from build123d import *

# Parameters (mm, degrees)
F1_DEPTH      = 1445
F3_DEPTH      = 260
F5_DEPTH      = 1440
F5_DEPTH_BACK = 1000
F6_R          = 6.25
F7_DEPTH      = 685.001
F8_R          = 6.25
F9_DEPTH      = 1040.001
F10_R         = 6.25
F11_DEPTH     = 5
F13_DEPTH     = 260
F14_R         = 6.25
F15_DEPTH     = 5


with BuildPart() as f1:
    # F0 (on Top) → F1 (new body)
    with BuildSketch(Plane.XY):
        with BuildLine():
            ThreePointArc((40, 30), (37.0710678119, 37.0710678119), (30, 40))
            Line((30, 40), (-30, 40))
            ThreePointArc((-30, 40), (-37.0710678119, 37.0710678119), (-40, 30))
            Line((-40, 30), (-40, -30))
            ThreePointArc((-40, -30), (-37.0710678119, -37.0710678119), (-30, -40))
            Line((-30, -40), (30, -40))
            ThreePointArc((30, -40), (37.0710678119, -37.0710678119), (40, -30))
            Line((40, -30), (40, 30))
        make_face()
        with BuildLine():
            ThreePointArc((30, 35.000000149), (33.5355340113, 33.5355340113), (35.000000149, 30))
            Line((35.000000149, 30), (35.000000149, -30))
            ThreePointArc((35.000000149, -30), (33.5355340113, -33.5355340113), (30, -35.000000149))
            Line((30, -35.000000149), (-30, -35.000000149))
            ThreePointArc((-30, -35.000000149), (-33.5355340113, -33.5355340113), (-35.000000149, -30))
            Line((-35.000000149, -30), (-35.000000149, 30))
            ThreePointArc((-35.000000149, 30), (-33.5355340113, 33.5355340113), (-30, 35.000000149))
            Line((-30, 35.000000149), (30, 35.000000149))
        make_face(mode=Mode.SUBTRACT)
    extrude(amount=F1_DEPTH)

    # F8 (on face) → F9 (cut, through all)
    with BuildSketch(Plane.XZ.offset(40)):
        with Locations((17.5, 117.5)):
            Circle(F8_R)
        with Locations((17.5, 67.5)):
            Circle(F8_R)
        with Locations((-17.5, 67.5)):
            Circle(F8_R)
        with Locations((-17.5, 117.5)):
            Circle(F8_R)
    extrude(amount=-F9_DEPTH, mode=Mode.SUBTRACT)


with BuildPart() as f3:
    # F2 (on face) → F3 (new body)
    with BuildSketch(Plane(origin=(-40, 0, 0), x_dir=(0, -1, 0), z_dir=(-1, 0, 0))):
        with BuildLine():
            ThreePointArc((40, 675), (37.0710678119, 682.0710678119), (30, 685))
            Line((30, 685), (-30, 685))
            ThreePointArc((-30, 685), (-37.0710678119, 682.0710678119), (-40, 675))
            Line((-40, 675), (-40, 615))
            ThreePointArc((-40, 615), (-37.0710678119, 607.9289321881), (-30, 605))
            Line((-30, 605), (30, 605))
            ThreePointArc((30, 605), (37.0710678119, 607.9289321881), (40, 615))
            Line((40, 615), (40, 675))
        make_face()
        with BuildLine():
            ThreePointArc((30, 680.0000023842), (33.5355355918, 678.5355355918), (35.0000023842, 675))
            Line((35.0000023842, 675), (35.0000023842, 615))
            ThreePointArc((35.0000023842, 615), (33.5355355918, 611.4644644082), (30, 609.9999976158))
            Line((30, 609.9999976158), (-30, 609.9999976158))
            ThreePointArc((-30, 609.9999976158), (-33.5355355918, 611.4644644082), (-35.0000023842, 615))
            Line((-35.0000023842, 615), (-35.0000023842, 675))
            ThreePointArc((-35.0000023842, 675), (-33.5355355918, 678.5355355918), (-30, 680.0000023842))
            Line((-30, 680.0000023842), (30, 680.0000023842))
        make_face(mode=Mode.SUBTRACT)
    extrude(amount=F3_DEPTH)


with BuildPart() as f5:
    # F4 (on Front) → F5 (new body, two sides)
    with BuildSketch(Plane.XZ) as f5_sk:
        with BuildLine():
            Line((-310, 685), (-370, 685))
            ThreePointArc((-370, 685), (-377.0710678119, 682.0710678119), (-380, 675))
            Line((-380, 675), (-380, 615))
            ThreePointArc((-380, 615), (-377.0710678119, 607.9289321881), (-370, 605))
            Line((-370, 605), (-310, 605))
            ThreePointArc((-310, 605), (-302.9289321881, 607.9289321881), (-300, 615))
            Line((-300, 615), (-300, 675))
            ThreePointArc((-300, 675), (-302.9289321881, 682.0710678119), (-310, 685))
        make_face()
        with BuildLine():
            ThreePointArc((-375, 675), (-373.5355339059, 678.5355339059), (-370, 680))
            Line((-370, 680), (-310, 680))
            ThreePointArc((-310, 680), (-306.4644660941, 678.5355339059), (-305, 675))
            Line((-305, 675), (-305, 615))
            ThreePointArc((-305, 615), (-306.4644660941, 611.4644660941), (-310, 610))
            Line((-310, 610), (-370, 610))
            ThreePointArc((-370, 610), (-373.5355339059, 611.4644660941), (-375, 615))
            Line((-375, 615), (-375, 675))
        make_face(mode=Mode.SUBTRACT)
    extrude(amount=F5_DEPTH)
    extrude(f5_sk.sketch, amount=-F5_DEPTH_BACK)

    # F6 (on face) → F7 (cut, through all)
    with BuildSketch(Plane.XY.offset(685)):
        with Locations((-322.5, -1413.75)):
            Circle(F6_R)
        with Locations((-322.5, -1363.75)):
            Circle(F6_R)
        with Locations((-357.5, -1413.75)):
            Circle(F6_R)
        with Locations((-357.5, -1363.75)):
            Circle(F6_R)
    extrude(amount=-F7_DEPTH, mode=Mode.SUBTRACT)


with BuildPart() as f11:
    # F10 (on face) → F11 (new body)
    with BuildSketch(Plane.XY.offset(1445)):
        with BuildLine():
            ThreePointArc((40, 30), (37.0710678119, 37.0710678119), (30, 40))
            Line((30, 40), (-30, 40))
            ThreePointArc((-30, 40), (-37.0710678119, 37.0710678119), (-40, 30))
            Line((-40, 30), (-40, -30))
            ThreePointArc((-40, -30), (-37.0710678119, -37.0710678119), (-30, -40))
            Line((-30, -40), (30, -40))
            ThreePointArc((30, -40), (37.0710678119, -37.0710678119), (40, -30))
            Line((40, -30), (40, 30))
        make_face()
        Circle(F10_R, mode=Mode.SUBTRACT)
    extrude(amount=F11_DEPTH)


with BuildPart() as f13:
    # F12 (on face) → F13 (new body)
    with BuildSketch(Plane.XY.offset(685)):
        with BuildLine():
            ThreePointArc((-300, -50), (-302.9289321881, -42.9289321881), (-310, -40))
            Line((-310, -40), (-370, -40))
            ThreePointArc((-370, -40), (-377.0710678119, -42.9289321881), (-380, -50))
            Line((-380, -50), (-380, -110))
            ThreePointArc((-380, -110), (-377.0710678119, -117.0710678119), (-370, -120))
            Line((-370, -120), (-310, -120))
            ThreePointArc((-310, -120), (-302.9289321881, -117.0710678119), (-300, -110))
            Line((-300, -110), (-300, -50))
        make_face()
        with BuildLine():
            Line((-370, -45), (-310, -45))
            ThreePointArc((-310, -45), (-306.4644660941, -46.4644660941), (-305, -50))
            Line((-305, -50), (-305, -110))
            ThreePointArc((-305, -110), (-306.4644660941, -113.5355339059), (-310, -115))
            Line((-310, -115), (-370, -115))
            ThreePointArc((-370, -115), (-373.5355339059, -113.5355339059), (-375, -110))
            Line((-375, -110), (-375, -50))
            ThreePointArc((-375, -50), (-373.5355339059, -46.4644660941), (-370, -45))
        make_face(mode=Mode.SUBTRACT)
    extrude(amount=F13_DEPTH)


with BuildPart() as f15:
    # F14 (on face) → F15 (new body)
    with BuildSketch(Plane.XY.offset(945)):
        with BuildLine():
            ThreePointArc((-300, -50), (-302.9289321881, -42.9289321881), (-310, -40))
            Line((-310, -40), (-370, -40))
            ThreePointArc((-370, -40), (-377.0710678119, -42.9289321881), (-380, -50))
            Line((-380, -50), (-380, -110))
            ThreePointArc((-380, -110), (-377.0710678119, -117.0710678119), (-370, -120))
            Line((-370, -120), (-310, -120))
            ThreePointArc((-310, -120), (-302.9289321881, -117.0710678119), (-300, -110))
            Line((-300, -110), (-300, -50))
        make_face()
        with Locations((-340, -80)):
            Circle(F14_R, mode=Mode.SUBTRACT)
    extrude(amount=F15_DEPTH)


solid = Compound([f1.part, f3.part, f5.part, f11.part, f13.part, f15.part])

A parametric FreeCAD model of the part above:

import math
import FreeCAD as App
import Part
import Sketcher
from FreeCAD import Vector

doc = App.newDocument("Part")
body = doc.addObject("PartDesign::Body", "Body")

sketch1 = body.newObject("Sketcher::SketchObject", "Sketch")
sketch1.AttachmentSupport = (doc.getObject("XY_Plane"), [""])
sketch1.MapMode = "FlatFace"
sketch1.addGeometry([
    Part.ArcOfCircle(Part.Circle(Vector(30, 30, 0), Vector(0, 0, 1), 10), math.radians(0), math.radians(90)),
    Part.LineSegment(Vector(30, 40, 0), Vector(-30, 40, 0)),
    Part.ArcOfCircle(Part.Circle(Vector(-30, 30, 0), Vector(0, 0, 1), 10), math.radians(90), math.radians(180)),
    Part.LineSegment(Vector(-40, 30, 0), Vector(-40, -30, 0)),
    Part.ArcOfCircle(Part.Circle(Vector(-30, -30, 0), Vector(0, 0, 1), 10), math.radians(180), math.radians(270)),
    Part.LineSegment(Vector(-30, -40, 0), Vector(30, -40, 0)),
    Part.ArcOfCircle(Part.Circle(Vector(30, -30, 0), Vector(0, 0, 1), 10), math.radians(-90), math.radians(0)),
    Part.LineSegment(Vector(40, -30, 0), Vector(40, 30, 0)),
    Part.LineSegment(Vector(-30, 35, 0), Vector(30, 35, 0)),
    Part.ArcOfCircle(Part.Circle(Vector(30, 30, 0), Vector(0, 0, 1), 5), math.radians(0), math.radians(90)),
    Part.LineSegment(Vector(35, 30, 0), Vector(35, -30, 0)),
    Part.ArcOfCircle(Part.Circle(Vector(30, -30, 0), Vector(0, 0, 1), 5), math.radians(-90), math.radians(0)),
    Part.LineSegment(Vector(30, -35, 0), Vector(-30, -35, 0)),
    Part.ArcOfCircle(Part.Circle(Vector(-30, -30, 0), Vector(0, 0, 1), 5), math.radians(180), math.radians(270)),
    Part.LineSegment(Vector(-35, -30, 0), Vector(-35, 30, 0)),
    Part.ArcOfCircle(Part.Circle(Vector(-30, 30, 0), Vector(0, 0, 1), 5), math.radians(90), math.radians(180)),
], False)
sketch1.addConstraint([
    Sketcher.Constraint("Tangent", 0, 2, 1, 1),
    Sketcher.Constraint("Tangent", 1, 2, 2, 1),
    Sketcher.Constraint("Tangent", 2, 2, 3, 1),
    Sketcher.Constraint("Tangent", 3, 2, 4, 1),
    Sketcher.Constraint("Tangent", 4, 2, 5, 1),
    Sketcher.Constraint("Tangent", 5, 2, 6, 1),
    Sketcher.Constraint("Tangent", 6, 2, 7, 1),
    Sketcher.Constraint("Tangent", 7, 2, 0, 1),
    Sketcher.Constraint("Tangent", 8, 2, 9, 2),
    Sketcher.Constraint("Tangent", 9, 1, 10, 1),
    Sketcher.Constraint("Tangent", 10, 2, 11, 2),
    Sketcher.Constraint("Tangent", 11, 1, 12, 1),
    Sketcher.Constraint("Tangent", 12, 2, 13, 2),
    Sketcher.Constraint("Tangent", 13, 1, 14, 1),
    Sketcher.Constraint("Tangent", 14, 2, 15, 2),
    Sketcher.Constraint("Tangent", 15, 1, 8, 1),
    Sketcher.Constraint("Horizontal", 1),
    Sketcher.Constraint("Vertical", 3),
    Sketcher.Constraint("Horizontal", 5),
    Sketcher.Constraint("Vertical", 7),
    Sketcher.Constraint("Horizontal", 8),
    Sketcher.Constraint("Vertical", 10),
    Sketcher.Constraint("Horizontal", 12),
    Sketcher.Constraint("Vertical", 14),
    Sketcher.Constraint("Coincident", 9, 3, 0, 3),
    Sketcher.Constraint("Coincident", 11, 3, 6, 3),
    Sketcher.Constraint("Coincident", 13, 3, 4, 3),
    Sketcher.Constraint("Equal", 0, 2),
    Sketcher.Constraint("Equal", 2, 4),
    Sketcher.Constraint("Equal", 4, 6),
    Sketcher.Constraint("Equal", 13, 15),
    Sketcher.Constraint("Symmetric", 0, 3, 4, 3, -1, 1),
    Sketcher.Constraint("Equal", 12, 3),
    Sketcher.Constraint("Radius", 0, 10.0),
    Sketcher.Constraint("Radius", 9, 5.0),
    Sketcher.Constraint("DistanceX", 1, 2, 1, 1, 60.0),
])
pad1 = body.newObject("PartDesign::Pad", "Pad")
pad1.Profile = sketch1
pad1.Length = 1445

sketch2 = body.newObject("Sketcher::SketchObject", "Sketch001")
sketch2.AttachmentSupport = (doc.getObject("XZ_Plane"), [""])
sketch2.MapMode = "FlatFace"
sketch2.AttachmentOffset = App.Placement(Vector(0, 0, 40), App.Rotation())
sketch2.addGeometry([
    Part.Circle(Vector(18, 118, 0), Vector(0, 0, 1), 6),
    Part.Circle(Vector(18, 68, 0), Vector(0, 0, 1), 6),
    Part.Circle(Vector(-18, 68, 0), Vector(0, 0, 1), 6),
    Part.Circle(Vector(-18, 118, 0), Vector(0, 0, 1), 6),
], False)
sketch2.addConstraint([
    Sketcher.Constraint("Equal", 0, 1),
    Sketcher.Constraint("Equal", 1, 2),
    Sketcher.Constraint("Equal", 2, 3),
    Sketcher.Constraint("Symmetric", 1, 3, 2, 3, -2),
    Sketcher.Constraint("Symmetric", 0, 3, 3, 3, -2),
    Sketcher.Constraint("Vertical", 0, 3, 1, 3),
    Sketcher.Constraint("Diameter", 0, 12.5),
    Sketcher.Constraint("DistanceY", 1, 3, 0, 3, 50.0),
    Sketcher.Constraint("DistanceX", 2, 3, 1, 3, 35.0),
    Sketcher.Constraint("DistanceY", -1, 1, 0, 3, 117.5),
])
pocket1 = body.newObject("PartDesign::Pocket", "Pocket")
pocket1.Profile = sketch2
pocket1.Type = "ThroughAll"
body2 = doc.addObject("PartDesign::Body", "Body001")

sketch3 = body2.newObject("Sketcher::SketchObject", "Sketch002")
sketch3.AttachmentSupport = (doc.getObject("YZ_Plane001"), [""])
sketch3.MapMode = "FlatFace"
sketch3.AttachmentOffset = App.Placement(Vector(0, 0, -40), App.Rotation())
sketch3.addGeometry([
    Part.ArcOfCircle(Part.Circle(Vector(-30, 675, 0), Vector(0, 0, 1), 10), math.radians(90), math.radians(180)),
    Part.LineSegment(Vector(-30, 685, 0), Vector(30, 685, 0)),
    Part.ArcOfCircle(Part.Circle(Vector(30, 675, 0), Vector(0, 0, 1), 10), math.radians(0), math.radians(90)),
    Part.LineSegment(Vector(40, 675, 0), Vector(40, 615, 0)),
    Part.ArcOfCircle(Part.Circle(Vector(30, 615, 0), Vector(0, 0, 1), 10), math.radians(-90), math.radians(0)),
    Part.LineSegment(Vector(30, 605, 0), Vector(-30, 605, 0)),
    Part.ArcOfCircle(Part.Circle(Vector(-30, 615, 0), Vector(0, 0, 1), 10), math.radians(180), math.radians(270)),
    Part.LineSegment(Vector(-40, 615, 0), Vector(-40, 675, 0)),
    Part.LineSegment(Vector(30, 680, 0), Vector(-30, 680, 0)),
    Part.ArcOfCircle(Part.Circle(Vector(-30, 675, 0), Vector(0, 0, 1), 5), math.radians(90), math.radians(180)),
    Part.LineSegment(Vector(-35, 675, 0), Vector(-35, 615, 0)),
    Part.ArcOfCircle(Part.Circle(Vector(-30, 615, 0), Vector(0, 0, 1), 5), math.radians(180), math.radians(270)),
    Part.LineSegment(Vector(-30, 610, 0), Vector(30, 610, 0)),
    Part.ArcOfCircle(Part.Circle(Vector(30, 615, 0), Vector(0, 0, 1), 5), math.radians(-90), math.radians(0)),
    Part.LineSegment(Vector(35, 615, 0), Vector(35, 675, 0)),
    Part.ArcOfCircle(Part.Circle(Vector(30, 675, 0), Vector(0, 0, 1), 5), math.radians(0), math.radians(90)),
], False)
sketch3.addConstraint([
    Sketcher.Constraint("Tangent", 0, 1, 1, 1),
    Sketcher.Constraint("Tangent", 1, 2, 2, 2),
    Sketcher.Constraint("Tangent", 2, 1, 3, 1),
    Sketcher.Constraint("Tangent", 3, 2, 4, 2),
    Sketcher.Constraint("Tangent", 4, 1, 5, 1),
    Sketcher.Constraint("Tangent", 5, 2, 6, 2),
    Sketcher.Constraint("Tangent", 6, 1, 7, 1),
    Sketcher.Constraint("Tangent", 7, 2, 0, 2),
    Sketcher.Constraint("Tangent", 8, 2, 9, 1),
    Sketcher.Constraint("Tangent", 9, 2, 10, 1),
    Sketcher.Constraint("Tangent", 10, 2, 11, 1),
    Sketcher.Constraint("Tangent", 11, 2, 12, 1),
    Sketcher.Constraint("Tangent", 12, 2, 13, 1),
    Sketcher.Constraint("Tangent", 13, 2, 14, 1),
    Sketcher.Constraint("Tangent", 14, 2, 15, 1),
    Sketcher.Constraint("Tangent", 15, 2, 8, 1),
    Sketcher.Constraint("Horizontal", 1),
    Sketcher.Constraint("Vertical", 3),
    Sketcher.Constraint("Horizontal", 5),
    Sketcher.Constraint("Vertical", 7),
    Sketcher.Constraint("Horizontal", 8),
    Sketcher.Constraint("Vertical", 10),
    Sketcher.Constraint("Horizontal", 12),
    Sketcher.Constraint("Vertical", 14),
    Sketcher.Constraint("Coincident", 9, 3, 0, 3),
    Sketcher.Constraint("Coincident", 11, 3, 6, 3),
    Sketcher.Constraint("Coincident", 13, 3, 4, 3),
    Sketcher.Constraint("Equal", 0, 2),
    Sketcher.Constraint("Equal", 2, 4),
    Sketcher.Constraint("Equal", 4, 6),
    Sketcher.Constraint("Equal", 13, 15),
    Sketcher.Constraint("Equal", 12, 3),
    Sketcher.Constraint("Radius", 0, 10.0),
    Sketcher.Constraint("DistanceX", 1, 1, 1, 2, 60.0),
    Sketcher.Constraint("DistanceX", 0, 3, -1, 1, 30.0),
    Sketcher.Constraint("DistanceY", -1, 1, 0, 3, 675.0),
    Sketcher.Constraint("Radius", 9, 5.000002),
])
pad2 = body2.newObject("PartDesign::Pad", "Pad001")
pad2.Profile = sketch3
pad2.Length = 260
pad2.Reversed = True
body3 = doc.addObject("PartDesign::Body", "Body002")

sketch4 = body3.newObject("Sketcher::SketchObject", "Sketch003")
sketch4.AttachmentSupport = (doc.getObject("XZ_Plane002"), [""])
sketch4.MapMode = "FlatFace"
sketch4.addGeometry([
    Part.LineSegment(Vector(-310, 685, 0), Vector(-370, 685, 0)),
    Part.ArcOfCircle(Part.Circle(Vector(-370, 675, 0), Vector(0, 0, 1), 10), math.radians(90), math.radians(180)),
    Part.LineSegment(Vector(-380, 675, 0), Vector(-380, 615, 0)),
    Part.ArcOfCircle(Part.Circle(Vector(-370, 615, 0), Vector(0, 0, 1), 10), math.radians(180), math.radians(270)),
    Part.LineSegment(Vector(-370, 605, 0), Vector(-310, 605, 0)),
    Part.ArcOfCircle(Part.Circle(Vector(-310, 615, 0), Vector(0, 0, 1), 10), math.radians(-90), math.radians(0)),
    Part.LineSegment(Vector(-300, 615, 0), Vector(-300, 675, 0)),
    Part.ArcOfCircle(Part.Circle(Vector(-310, 675, 0), Vector(0, 0, 1), 10), math.radians(0), math.radians(90)),
    Part.LineSegment(Vector(-375, 615, 0), Vector(-375, 675, 0)),
    Part.ArcOfCircle(Part.Circle(Vector(-370, 675, 0), Vector(0, 0, 1), 5), math.radians(90), math.radians(180)),
    Part.LineSegment(Vector(-370, 680, 0), Vector(-310, 680, 0)),
    Part.ArcOfCircle(Part.Circle(Vector(-310, 675, 0), Vector(0, 0, 1), 5), math.radians(0), math.radians(90)),
    Part.LineSegment(Vector(-305, 675, 0), Vector(-305, 615, 0)),
    Part.ArcOfCircle(Part.Circle(Vector(-310, 615, 0), Vector(0, 0, 1), 5), math.radians(-90), math.radians(0)),
    Part.LineSegment(Vector(-310, 610, 0), Vector(-370, 610, 0)),
    Part.ArcOfCircle(Part.Circle(Vector(-370, 615, 0), Vector(0, 0, 1), 5), math.radians(180), math.radians(270)),
], False)
sketch4.addConstraint([
    Sketcher.Constraint("Tangent", 0, 2, 1, 1),
    Sketcher.Constraint("Tangent", 1, 2, 2, 1),
    Sketcher.Constraint("Tangent", 2, 2, 3, 1),
    Sketcher.Constraint("Tangent", 3, 2, 4, 1),
    Sketcher.Constraint("Tangent", 4, 2, 5, 1),
    Sketcher.Constraint("Tangent", 5, 2, 6, 1),
    Sketcher.Constraint("Tangent", 6, 2, 7, 1),
    Sketcher.Constraint("Tangent", 7, 2, 0, 1),
    Sketcher.Constraint("Tangent", 8, 2, 9, 2),
    Sketcher.Constraint("Tangent", 9, 1, 10, 1),
    Sketcher.Constraint("Tangent", 10, 2, 11, 2),
    Sketcher.Constraint("Tangent", 11, 1, 12, 1),
    Sketcher.Constraint("Tangent", 12, 2, 13, 2),
    Sketcher.Constraint("Tangent", 13, 1, 14, 1),
    Sketcher.Constraint("Tangent", 14, 2, 15, 2),
    Sketcher.Constraint("Tangent", 15, 1, 8, 1),
    Sketcher.Constraint("Horizontal", 0),
    Sketcher.Constraint("Vertical", 2),
    Sketcher.Constraint("Horizontal", 4),
    Sketcher.Constraint("Vertical", 6),
    Sketcher.Constraint("Vertical", 8),
    Sketcher.Constraint("Horizontal", 10),
    Sketcher.Constraint("Vertical", 12),
    Sketcher.Constraint("Horizontal", 14),
    Sketcher.Constraint("Coincident", 9, 3, 1, 3),
    Sketcher.Constraint("Coincident", 11, 3, 7, 3),
    Sketcher.Constraint("Coincident", 13, 3, 5, 3),
    Sketcher.Constraint("Equal", 1, 3),
    Sketcher.Constraint("Equal", 3, 5),
    Sketcher.Constraint("Equal", 5, 7),
    Sketcher.Constraint("Equal", 13, 15),
    Sketcher.Constraint("Equal", 14, 2),
    Sketcher.Constraint("Radius", 1, 10.0),
    Sketcher.Constraint("Radius", 9, 5.0),
    Sketcher.Constraint("DistanceX", 0, 2, 0, 1, 60.0),
    Sketcher.Constraint("DistanceX", 1, 3, -1, 1, 370.0),
    Sketcher.Constraint("DistanceY", -1, 1, 1, 3, 675.0),
])
pad3 = body3.newObject("PartDesign::Pad", "Pad002")
pad3.Profile = sketch4
pad3.Type = "TwoLengths"
pad3.Length = 1440
pad3.Length2 = 1000

sketch5 = body3.newObject("Sketcher::SketchObject", "Sketch004")
sketch5.AttachmentSupport = (doc.getObject("XY_Plane002"), [""])
sketch5.MapMode = "FlatFace"
sketch5.AttachmentOffset = App.Placement(Vector(0, 0, 685), App.Rotation())
sketch5.addGeometry([
    Part.Circle(Vector(-322, -1414, 0), Vector(0, 0, 1), 6),
    Part.Circle(Vector(-322, -1364, 0), Vector(0, 0, 1), 6),
    Part.Circle(Vector(-358, -1414, 0), Vector(0, 0, 1), 6),
    Part.Circle(Vector(-358, -1364, 0), Vector(0, 0, 1), 6),
], False)
sketch5.addConstraint([
    Sketcher.Constraint("Equal", 0, 1),
    Sketcher.Constraint("Equal", 1, 2),
    Sketcher.Constraint("Equal", 2, 3),
    Sketcher.Constraint("Horizontal", 0, 3, 2, 3),
    Sketcher.Constraint("Horizontal", 1, 3, 3, 3),
    Sketcher.Constraint("Vertical", 0, 3, 1, 3),
    Sketcher.Constraint("Vertical", 2, 3, 3, 3),
    Sketcher.Constraint("Diameter", 0, 12.5),
    Sketcher.Constraint("DistanceY", 0, 3, 1, 3, 50.0),
    Sketcher.Constraint("DistanceX", 2, 3, 0, 3, 35.0),
    Sketcher.Constraint("DistanceX", 0, 3, -1, 1, 322.5),
    Sketcher.Constraint("DistanceY", 0, 3, -1, 1, 1413.75),
])
pocket2 = body3.newObject("PartDesign::Pocket", "Pocket001")
pocket2.Profile = sketch5
pocket2.Type = "ThroughAll"
body4 = doc.addObject("PartDesign::Body", "Body003")

sketch6 = body4.newObject("Sketcher::SketchObject", "Sketch005")
sketch6.AttachmentSupport = (doc.getObject("XY_Plane003"), [""])
sketch6.MapMode = "FlatFace"
sketch6.AttachmentOffset = App.Placement(Vector(0, 0, 1445), App.Rotation())
sketch6.addGeometry([
    Part.ArcOfCircle(Part.Circle(Vector(30, 30, 0), Vector(0, 0, 1), 10), math.radians(0), math.radians(90)),
    Part.LineSegment(Vector(30, 40, 0), Vector(-30, 40, 0)),
    Part.ArcOfCircle(Part.Circle(Vector(-30, 30, 0), Vector(0, 0, 1), 10), math.radians(90), math.radians(180)),
    Part.LineSegment(Vector(-40, 30, 0), Vector(-40, -30, 0)),
    Part.ArcOfCircle(Part.Circle(Vector(-30, -30, 0), Vector(0, 0, 1), 10), math.radians(180), math.radians(270)),
    Part.LineSegment(Vector(-30, -40, 0), Vector(30, -40, 0)),
    Part.ArcOfCircle(Part.Circle(Vector(30, -30, 0), Vector(0, 0, 1), 10), math.radians(-90), math.radians(0)),
    Part.LineSegment(Vector(40, -30, 0), Vector(40, 30, 0)),
    Part.Circle(Vector(0, 0, 0), Vector(0, 0, 1), 6),
], False)
sketch6.addConstraint([
    Sketcher.Constraint("Tangent", 0, 2, 1, 1),
    Sketcher.Constraint("Tangent", 1, 2, 2, 1),
    Sketcher.Constraint("Tangent", 2, 2, 3, 1),
    Sketcher.Constraint("Tangent", 3, 2, 4, 1),
    Sketcher.Constraint("Tangent", 4, 2, 5, 1),
    Sketcher.Constraint("Tangent", 5, 2, 6, 1),
    Sketcher.Constraint("Tangent", 6, 2, 7, 1),
    Sketcher.Constraint("Tangent", 7, 2, 0, 1),
    Sketcher.Constraint("Horizontal", 1),
    Sketcher.Constraint("Vertical", 3),
    Sketcher.Constraint("Horizontal", 5),
    Sketcher.Constraint("Vertical", 7),
    Sketcher.Constraint("Coincident", 8, 3, -1, 1),
    Sketcher.Constraint("Equal", 0, 2),
    Sketcher.Constraint("Equal", 2, 4),
    Sketcher.Constraint("Equal", 4, 6),
    Sketcher.Constraint("Symmetric", 0, 3, 4, 3, -1, 1),
    Sketcher.Constraint("Equal", 5, 3),
    Sketcher.Constraint("Radius", 0, 10.0),
    Sketcher.Constraint("Diameter", 8, 12.5),
    Sketcher.Constraint("DistanceX", 1, 2, 1, 1, 60.0),
])
pad4 = body4.newObject("PartDesign::Pad", "Pad003")
pad4.Profile = sketch6
pad4.Length = 5
body5 = doc.addObject("PartDesign::Body", "Body004")

sketch7 = body5.newObject("Sketcher::SketchObject", "Sketch006")
sketch7.AttachmentSupport = (doc.getObject("XY_Plane004"), [""])
sketch7.MapMode = "FlatFace"
sketch7.AttachmentOffset = App.Placement(Vector(0, 0, 685), App.Rotation())
sketch7.addGeometry([
    Part.ArcOfCircle(Part.Circle(Vector(-310, -50, 0), Vector(0, 0, 1), 10), math.radians(0), math.radians(90)),
    Part.LineSegment(Vector(-310, -40, 0), Vector(-370, -40, 0)),
    Part.ArcOfCircle(Part.Circle(Vector(-370, -50, 0), Vector(0, 0, 1), 10), math.radians(90), math.radians(180)),
    Part.LineSegment(Vector(-380, -50, 0), Vector(-380, -110, 0)),
    Part.ArcOfCircle(Part.Circle(Vector(-370, -110, 0), Vector(0, 0, 1), 10), math.radians(180), math.radians(270)),
    Part.LineSegment(Vector(-370, -120, 0), Vector(-310, -120, 0)),
    Part.ArcOfCircle(Part.Circle(Vector(-310, -110, 0), Vector(0, 0, 1), 10), math.radians(-90), math.radians(0)),
    Part.LineSegment(Vector(-300, -110, 0), Vector(-300, -50, 0)),
    Part.ArcOfCircle(Part.Circle(Vector(-370, -50, 0), Vector(0, 0, 1), 5), math.radians(90), math.radians(180)),
    Part.LineSegment(Vector(-370, -45, 0), Vector(-310, -45, 0)),
    Part.ArcOfCircle(Part.Circle(Vector(-310, -50, 0), Vector(0, 0, 1), 5), math.radians(0), math.radians(90)),
    Part.LineSegment(Vector(-305, -50, 0), Vector(-305, -110, 0)),
    Part.ArcOfCircle(Part.Circle(Vector(-310, -110, 0), Vector(0, 0, 1), 5), math.radians(-90), math.radians(0)),
    Part.LineSegment(Vector(-310, -115, 0), Vector(-370, -115, 0)),
    Part.ArcOfCircle(Part.Circle(Vector(-370, -110, 0), Vector(0, 0, 1), 5), math.radians(180), math.radians(270)),
    Part.LineSegment(Vector(-375, -110, 0), Vector(-375, -50, 0)),
], False)
sketch7.addConstraint([
    Sketcher.Constraint("Tangent", 0, 2, 1, 1),
    Sketcher.Constraint("Tangent", 1, 2, 2, 1),
    Sketcher.Constraint("Tangent", 2, 2, 3, 1),
    Sketcher.Constraint("Tangent", 3, 2, 4, 1),
    Sketcher.Constraint("Tangent", 4, 2, 5, 1),
    Sketcher.Constraint("Tangent", 5, 2, 6, 1),
    Sketcher.Constraint("Tangent", 6, 2, 7, 1),
    Sketcher.Constraint("Tangent", 7, 2, 0, 1),
    Sketcher.Constraint("Tangent", 8, 1, 9, 1),
    Sketcher.Constraint("Tangent", 9, 2, 10, 2),
    Sketcher.Constraint("Tangent", 10, 1, 11, 1),
    Sketcher.Constraint("Tangent", 11, 2, 12, 2),
    Sketcher.Constraint("Tangent", 12, 1, 13, 1),
    Sketcher.Constraint("Tangent", 13, 2, 14, 2),
    Sketcher.Constraint("Tangent", 14, 1, 15, 1),
    Sketcher.Constraint("Tangent", 15, 2, 8, 2),
    Sketcher.Constraint("Horizontal", 1),
    Sketcher.Constraint("Vertical", 3),
    Sketcher.Constraint("Horizontal", 5),
    Sketcher.Constraint("Vertical", 7),
    Sketcher.Constraint("Horizontal", 9),
    Sketcher.Constraint("Vertical", 11),
    Sketcher.Constraint("Horizontal", 13),
    Sketcher.Constraint("Vertical", 15),
    Sketcher.Constraint("Coincident", 8, 3, 2, 3),
    Sketcher.Constraint("Coincident", 10, 3, 0, 3),
    Sketcher.Constraint("Coincident", 12, 3, 6, 3),
    Sketcher.Constraint("Equal", 0, 2),
    Sketcher.Constraint("Equal", 2, 4),
    Sketcher.Constraint("Equal", 4, 6),
    Sketcher.Constraint("Equal", 12, 14),
    Sketcher.Constraint("Equal", 13, 3),
    Sketcher.Constraint("Radius", 0, 10.0),
    Sketcher.Constraint("Radius", 8, 5.0),
    Sketcher.Constraint("DistanceX", 1, 2, 1, 1, 60.0),
    Sketcher.Constraint("DistanceX", 0, 3, -1, 1, 310.0),
    Sketcher.Constraint("DistanceY", 0, 3, -1, 1, 50.0),
])
pad5 = body5.newObject("PartDesign::Pad", "Pad004")
pad5.Profile = sketch7
pad5.Length = 260
body6 = doc.addObject("PartDesign::Body", "Body005")

sketch8 = body6.newObject("Sketcher::SketchObject", "Sketch007")
sketch8.AttachmentSupport = (doc.getObject("XY_Plane005"), [""])
sketch8.MapMode = "FlatFace"
sketch8.AttachmentOffset = App.Placement(Vector(0, 0, 945), App.Rotation())
sketch8.addGeometry([
    Part.ArcOfCircle(Part.Circle(Vector(-310, -50, 0), Vector(0, 0, 1), 10), math.radians(0), math.radians(90)),
    Part.LineSegment(Vector(-310, -40, 0), Vector(-370, -40, 0)),
    Part.ArcOfCircle(Part.Circle(Vector(-370, -50, 0), Vector(0, 0, 1), 10), math.radians(90), math.radians(180)),
    Part.LineSegment(Vector(-380, -50, 0), Vector(-380, -110, 0)),
    Part.ArcOfCircle(Part.Circle(Vector(-370, -110, 0), Vector(0, 0, 1), 10), math.radians(180), math.radians(270)),
    Part.LineSegment(Vector(-370, -120, 0), Vector(-310, -120, 0)),
    Part.ArcOfCircle(Part.Circle(Vector(-310, -110, 0), Vector(0, 0, 1), 10), math.radians(-90), math.radians(0)),
    Part.LineSegment(Vector(-300, -110, 0), Vector(-300, -50, 0)),
    Part.Circle(Vector(-340, -80, 0), Vector(0, 0, 1), 6),
], False)
sketch8.addConstraint([
    Sketcher.Constraint("Tangent", 0, 2, 1, 1),
    Sketcher.Constraint("Tangent", 1, 2, 2, 1),
    Sketcher.Constraint("Tangent", 2, 2, 3, 1),
    Sketcher.Constraint("Tangent", 3, 2, 4, 1),
    Sketcher.Constraint("Tangent", 4, 2, 5, 1),
    Sketcher.Constraint("Tangent", 5, 2, 6, 1),
    Sketcher.Constraint("Tangent", 6, 2, 7, 1),
    Sketcher.Constraint("Tangent", 7, 2, 0, 1),
    Sketcher.Constraint("Horizontal", 1),
    Sketcher.Constraint("Vertical", 3),
    Sketcher.Constraint("Horizontal", 5),
    Sketcher.Constraint("Vertical", 7),
    Sketcher.Constraint("Equal", 0, 2),
    Sketcher.Constraint("Equal", 2, 4),
    Sketcher.Constraint("Equal", 4, 6),
    Sketcher.Constraint("Equal", 5, 3),
    Sketcher.Constraint("Radius", 0, 10.0),
    Sketcher.Constraint("Diameter", 8, 12.5),
    Sketcher.Constraint("DistanceX", 1, 2, 1, 1, 60.0),
    Sketcher.Constraint("DistanceX", 0, 3, -1, 1, 310.0),
    Sketcher.Constraint("DistanceY", 0, 3, -1, 1, 50.0),
    Sketcher.Constraint("DistanceX", 8, 3, -1, 1, 340.0),
    Sketcher.Constraint("DistanceY", 8, 3, -1, 1, 80.0),
])
pad6 = body6.newObject("PartDesign::Pad", "Pad005")
pad6.Profile = sketch8
pad6.Length = 5

doc.recompute()
